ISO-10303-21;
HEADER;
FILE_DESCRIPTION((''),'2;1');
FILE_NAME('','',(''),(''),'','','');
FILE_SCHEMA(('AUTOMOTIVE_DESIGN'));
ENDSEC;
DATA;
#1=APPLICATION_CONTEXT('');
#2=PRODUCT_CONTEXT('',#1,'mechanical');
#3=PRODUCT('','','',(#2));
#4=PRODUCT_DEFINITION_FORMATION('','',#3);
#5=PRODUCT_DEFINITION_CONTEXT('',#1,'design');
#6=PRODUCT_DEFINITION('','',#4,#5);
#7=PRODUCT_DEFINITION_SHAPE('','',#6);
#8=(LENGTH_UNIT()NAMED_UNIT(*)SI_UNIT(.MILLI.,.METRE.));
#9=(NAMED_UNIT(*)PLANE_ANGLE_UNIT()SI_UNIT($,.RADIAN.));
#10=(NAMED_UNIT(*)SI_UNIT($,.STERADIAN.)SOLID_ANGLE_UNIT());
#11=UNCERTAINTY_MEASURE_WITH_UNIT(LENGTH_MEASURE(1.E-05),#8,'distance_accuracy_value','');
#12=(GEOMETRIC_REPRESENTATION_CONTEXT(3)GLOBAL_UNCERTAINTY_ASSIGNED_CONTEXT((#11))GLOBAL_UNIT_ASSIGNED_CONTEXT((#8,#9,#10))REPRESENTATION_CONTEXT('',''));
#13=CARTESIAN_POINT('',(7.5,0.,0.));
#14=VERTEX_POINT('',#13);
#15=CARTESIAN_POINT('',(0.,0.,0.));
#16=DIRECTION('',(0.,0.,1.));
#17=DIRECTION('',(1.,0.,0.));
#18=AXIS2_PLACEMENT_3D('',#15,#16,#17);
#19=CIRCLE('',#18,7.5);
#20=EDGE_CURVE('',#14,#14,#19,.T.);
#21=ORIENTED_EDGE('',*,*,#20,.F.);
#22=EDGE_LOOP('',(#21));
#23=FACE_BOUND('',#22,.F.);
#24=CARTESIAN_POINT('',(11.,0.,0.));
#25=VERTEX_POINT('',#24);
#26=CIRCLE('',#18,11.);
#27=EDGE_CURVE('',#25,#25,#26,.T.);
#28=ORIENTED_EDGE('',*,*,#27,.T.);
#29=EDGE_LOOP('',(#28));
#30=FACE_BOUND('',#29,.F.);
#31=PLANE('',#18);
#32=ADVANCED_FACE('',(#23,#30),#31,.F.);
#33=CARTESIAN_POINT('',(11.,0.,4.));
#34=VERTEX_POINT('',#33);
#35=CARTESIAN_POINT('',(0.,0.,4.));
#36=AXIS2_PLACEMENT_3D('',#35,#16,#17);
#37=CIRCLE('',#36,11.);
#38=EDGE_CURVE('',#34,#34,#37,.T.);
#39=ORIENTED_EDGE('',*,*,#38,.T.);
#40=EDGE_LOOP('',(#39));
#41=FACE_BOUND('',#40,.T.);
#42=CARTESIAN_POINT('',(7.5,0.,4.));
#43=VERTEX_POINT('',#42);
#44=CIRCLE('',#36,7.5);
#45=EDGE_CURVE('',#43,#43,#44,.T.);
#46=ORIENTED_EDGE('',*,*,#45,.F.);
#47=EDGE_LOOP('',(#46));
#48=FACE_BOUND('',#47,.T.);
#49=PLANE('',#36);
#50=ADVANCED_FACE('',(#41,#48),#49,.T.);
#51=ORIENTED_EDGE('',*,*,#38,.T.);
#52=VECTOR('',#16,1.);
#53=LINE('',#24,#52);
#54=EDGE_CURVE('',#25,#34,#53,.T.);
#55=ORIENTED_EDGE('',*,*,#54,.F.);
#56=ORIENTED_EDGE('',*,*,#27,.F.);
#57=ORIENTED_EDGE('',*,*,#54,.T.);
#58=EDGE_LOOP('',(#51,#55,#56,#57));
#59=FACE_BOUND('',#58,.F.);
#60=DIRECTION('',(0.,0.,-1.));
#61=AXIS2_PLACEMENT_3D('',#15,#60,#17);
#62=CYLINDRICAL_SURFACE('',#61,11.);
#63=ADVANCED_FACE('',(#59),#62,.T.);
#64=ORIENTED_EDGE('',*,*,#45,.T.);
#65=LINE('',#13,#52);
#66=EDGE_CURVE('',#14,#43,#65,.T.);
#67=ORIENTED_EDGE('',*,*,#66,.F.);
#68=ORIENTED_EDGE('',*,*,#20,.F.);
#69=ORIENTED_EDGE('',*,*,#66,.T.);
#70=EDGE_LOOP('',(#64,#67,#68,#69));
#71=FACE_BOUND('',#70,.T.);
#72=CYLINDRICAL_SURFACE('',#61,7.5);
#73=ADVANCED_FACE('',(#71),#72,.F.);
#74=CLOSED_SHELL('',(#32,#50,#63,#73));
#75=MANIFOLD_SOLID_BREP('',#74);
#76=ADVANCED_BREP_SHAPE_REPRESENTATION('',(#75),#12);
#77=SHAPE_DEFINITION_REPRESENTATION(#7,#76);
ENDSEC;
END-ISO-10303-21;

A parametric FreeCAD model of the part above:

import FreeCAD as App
import Part
import Sketcher

V = App.Vector
Q = App.Units.Quantity

doc = App.newDocument("Part")
params = doc.addObject("Spreadsheet::Sheet", "Params")
for row, (alias, value) in enumerate([
    ("sketch1_diameter", "22 mm"),
    ("sketch1_diameter2", "15 mm"),
    ("pad1_length", "4 mm"),
], start=1):
    params.set(f"A{row}", alias)
    params.set(f"B{row}", "=" + value)
    params.setAlias(f"B{row}", alias)

body = doc.addObject("PartDesign::Body", "Body")

sketch1 = body.newObject("Sketcher::SketchObject", "Sketch")
sketch1.AttachmentSupport = (doc.getObject("XY_Plane"), [""])
sketch1.MapMode = "FlatFace"
sketch1.addGeometry([
    Part.Circle(V(0, 0, 0), V(0, 0, 1), 11),
    Part.Circle(V(0, 0, 0), V(0, 0, 1), 8),
], False)
sketch1.addConstraint([
    Sketcher.Constraint("Coincident", 0, 3, -1, 1),
    Sketcher.Constraint("Coincident", 1, 3, -1, 1),
    Sketcher.Constraint("Diameter", 0, Q("22 mm")),
    Sketcher.Constraint("Diameter", 1, Q("15 mm")),
])
sketch1.setExpression("Constraints[2]", "Params.sketch1_diameter")
sketch1.setExpression("Constraints[3]", "Params.sketch1_diameter2")
pad1 = body.newObject("PartDesign::Pad", "Pad")
pad1.Profile = sketch1
pad1.setExpression("Length", "Params.pad1_length")

doc.recompute()
